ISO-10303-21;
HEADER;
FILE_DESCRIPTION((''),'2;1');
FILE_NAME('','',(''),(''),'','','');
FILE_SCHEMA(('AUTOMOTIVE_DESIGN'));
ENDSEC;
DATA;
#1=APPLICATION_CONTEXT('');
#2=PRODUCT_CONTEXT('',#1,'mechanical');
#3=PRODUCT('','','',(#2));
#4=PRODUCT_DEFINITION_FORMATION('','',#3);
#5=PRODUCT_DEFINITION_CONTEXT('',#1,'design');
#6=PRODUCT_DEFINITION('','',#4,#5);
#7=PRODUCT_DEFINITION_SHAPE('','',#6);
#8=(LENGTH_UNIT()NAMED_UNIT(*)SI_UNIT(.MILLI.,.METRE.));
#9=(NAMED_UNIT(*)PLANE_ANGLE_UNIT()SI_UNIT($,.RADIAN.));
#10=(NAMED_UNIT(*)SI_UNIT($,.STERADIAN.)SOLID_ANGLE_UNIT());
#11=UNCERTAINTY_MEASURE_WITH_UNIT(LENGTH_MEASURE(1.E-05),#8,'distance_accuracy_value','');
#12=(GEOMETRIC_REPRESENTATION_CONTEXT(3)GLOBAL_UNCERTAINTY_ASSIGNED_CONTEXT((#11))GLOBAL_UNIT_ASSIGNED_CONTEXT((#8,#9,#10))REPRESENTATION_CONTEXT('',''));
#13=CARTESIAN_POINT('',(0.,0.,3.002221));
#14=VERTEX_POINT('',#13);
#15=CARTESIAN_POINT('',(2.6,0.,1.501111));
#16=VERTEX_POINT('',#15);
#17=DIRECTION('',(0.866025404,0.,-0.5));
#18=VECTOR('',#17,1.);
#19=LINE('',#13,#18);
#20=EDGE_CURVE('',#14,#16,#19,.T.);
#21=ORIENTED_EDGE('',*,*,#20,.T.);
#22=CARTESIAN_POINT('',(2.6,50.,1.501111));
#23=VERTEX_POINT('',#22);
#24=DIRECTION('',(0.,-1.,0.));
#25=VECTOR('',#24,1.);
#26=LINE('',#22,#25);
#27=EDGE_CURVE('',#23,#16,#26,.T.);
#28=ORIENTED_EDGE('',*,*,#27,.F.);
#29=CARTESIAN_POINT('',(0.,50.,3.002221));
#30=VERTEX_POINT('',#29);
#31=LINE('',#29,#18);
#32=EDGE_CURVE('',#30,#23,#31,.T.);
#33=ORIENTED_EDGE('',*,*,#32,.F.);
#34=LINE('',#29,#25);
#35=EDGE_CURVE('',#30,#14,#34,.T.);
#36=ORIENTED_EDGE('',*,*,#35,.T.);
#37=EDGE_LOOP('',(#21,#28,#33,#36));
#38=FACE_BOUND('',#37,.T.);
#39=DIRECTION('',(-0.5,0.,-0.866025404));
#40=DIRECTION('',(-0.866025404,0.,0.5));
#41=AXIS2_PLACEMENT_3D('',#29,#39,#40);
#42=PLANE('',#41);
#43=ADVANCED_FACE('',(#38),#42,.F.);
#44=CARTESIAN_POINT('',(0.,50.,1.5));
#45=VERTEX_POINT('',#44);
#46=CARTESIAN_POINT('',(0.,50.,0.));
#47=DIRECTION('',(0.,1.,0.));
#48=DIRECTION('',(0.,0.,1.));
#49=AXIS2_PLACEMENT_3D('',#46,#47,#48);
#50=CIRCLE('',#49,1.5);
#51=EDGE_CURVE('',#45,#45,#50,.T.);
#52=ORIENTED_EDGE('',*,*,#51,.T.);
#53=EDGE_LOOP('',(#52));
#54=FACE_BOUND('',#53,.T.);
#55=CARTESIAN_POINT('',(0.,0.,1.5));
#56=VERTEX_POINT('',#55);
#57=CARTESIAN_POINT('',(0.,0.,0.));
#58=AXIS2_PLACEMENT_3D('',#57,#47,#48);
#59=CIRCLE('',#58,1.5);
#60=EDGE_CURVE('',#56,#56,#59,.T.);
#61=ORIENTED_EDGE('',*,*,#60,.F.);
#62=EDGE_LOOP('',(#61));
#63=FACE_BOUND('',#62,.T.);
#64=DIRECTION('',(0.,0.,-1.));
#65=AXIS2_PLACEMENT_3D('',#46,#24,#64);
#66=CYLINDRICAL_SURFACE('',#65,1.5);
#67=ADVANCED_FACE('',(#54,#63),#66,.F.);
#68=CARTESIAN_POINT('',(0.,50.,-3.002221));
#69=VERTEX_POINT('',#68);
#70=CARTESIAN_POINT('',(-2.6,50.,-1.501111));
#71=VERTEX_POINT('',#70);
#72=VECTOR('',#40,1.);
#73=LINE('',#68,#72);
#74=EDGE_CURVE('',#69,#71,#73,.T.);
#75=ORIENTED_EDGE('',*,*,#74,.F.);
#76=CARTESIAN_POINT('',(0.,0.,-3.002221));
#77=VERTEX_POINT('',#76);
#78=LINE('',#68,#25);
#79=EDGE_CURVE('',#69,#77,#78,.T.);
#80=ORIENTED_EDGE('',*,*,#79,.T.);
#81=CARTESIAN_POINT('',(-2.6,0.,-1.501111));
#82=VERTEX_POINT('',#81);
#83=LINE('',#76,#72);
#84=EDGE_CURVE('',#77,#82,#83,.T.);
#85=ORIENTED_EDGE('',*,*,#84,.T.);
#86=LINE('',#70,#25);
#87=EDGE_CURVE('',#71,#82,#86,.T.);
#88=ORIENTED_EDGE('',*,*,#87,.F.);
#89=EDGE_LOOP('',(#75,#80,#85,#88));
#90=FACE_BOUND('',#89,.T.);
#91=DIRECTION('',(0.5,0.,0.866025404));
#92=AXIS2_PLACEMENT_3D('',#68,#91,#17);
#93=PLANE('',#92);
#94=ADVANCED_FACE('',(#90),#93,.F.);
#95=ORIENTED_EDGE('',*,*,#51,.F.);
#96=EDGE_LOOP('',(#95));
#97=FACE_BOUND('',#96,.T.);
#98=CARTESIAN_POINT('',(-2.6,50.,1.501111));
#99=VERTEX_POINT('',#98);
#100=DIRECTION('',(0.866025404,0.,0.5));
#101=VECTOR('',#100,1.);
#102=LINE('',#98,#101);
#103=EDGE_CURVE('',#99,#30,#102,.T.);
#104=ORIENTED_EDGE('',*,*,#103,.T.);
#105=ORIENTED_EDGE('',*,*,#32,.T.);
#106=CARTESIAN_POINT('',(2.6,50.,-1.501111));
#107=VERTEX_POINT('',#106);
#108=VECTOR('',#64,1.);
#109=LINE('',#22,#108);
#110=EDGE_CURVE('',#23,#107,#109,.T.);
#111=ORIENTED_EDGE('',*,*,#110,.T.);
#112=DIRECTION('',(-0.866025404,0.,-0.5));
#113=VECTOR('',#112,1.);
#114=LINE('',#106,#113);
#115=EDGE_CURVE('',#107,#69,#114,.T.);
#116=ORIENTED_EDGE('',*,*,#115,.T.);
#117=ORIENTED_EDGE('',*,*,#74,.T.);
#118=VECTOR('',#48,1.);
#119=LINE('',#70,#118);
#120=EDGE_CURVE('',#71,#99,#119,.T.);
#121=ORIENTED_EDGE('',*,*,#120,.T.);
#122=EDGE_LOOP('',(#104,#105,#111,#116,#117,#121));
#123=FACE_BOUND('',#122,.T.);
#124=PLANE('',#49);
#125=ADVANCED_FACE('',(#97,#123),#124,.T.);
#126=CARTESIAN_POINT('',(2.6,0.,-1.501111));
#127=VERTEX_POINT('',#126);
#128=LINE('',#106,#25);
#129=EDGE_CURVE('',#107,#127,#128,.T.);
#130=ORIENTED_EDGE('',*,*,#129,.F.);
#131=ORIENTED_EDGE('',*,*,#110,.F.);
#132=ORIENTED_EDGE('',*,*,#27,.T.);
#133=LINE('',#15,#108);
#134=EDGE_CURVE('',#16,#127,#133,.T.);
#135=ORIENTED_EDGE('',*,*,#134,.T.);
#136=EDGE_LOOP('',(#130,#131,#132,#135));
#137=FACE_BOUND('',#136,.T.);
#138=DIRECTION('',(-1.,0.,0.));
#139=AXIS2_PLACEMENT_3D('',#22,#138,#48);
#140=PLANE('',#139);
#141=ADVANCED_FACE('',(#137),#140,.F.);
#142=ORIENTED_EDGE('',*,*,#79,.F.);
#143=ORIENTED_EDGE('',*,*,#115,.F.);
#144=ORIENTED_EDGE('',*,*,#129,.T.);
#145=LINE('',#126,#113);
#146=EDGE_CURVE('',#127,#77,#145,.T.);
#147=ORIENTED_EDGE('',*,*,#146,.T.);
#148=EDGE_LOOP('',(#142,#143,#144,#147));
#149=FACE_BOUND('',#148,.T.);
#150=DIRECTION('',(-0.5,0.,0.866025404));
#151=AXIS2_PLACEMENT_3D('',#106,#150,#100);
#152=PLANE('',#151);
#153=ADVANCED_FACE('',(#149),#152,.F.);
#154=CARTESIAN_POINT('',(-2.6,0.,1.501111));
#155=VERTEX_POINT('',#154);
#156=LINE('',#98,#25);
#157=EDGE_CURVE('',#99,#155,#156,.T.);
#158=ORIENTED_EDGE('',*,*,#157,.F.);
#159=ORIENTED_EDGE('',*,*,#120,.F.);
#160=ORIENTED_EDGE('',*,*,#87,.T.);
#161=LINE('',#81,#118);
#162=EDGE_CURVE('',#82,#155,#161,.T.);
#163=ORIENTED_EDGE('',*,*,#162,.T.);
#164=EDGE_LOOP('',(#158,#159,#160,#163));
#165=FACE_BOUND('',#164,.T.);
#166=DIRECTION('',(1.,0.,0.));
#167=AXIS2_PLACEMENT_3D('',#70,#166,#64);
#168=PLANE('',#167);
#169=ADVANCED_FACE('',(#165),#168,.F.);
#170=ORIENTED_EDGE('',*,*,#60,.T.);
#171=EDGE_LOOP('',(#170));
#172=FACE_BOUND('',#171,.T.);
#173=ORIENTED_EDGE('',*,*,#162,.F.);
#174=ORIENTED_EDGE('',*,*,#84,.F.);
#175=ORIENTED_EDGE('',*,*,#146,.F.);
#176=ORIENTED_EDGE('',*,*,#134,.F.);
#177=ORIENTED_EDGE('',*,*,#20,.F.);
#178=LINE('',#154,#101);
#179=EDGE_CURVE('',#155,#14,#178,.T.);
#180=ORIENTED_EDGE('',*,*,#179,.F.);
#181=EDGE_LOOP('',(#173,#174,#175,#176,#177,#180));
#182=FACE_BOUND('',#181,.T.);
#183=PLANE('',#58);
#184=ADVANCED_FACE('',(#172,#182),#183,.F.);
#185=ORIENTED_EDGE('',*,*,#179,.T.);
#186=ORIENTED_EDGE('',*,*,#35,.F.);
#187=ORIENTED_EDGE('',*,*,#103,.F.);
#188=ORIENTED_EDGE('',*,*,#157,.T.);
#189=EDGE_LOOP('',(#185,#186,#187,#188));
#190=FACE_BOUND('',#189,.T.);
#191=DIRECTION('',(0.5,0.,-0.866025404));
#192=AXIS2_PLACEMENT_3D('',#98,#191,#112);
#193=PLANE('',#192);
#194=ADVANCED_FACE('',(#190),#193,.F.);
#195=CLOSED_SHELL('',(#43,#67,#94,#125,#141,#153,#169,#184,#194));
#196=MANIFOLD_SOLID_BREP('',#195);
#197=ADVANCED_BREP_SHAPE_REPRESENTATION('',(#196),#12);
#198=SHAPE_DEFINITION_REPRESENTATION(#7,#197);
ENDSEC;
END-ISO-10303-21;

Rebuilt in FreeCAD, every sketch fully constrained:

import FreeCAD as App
import Part
import Sketcher

V = App.Vector
Q = App.Units.Quantity

doc = App.newDocument("Part")
body = doc.addObject("PartDesign::Body", "Body")

sketch1 = body.newObject("Sketcher::SketchObject", "Sketch")
sketch1.AttachmentSupport = (doc.getObject("XZ_Plane"), [""])
sketch1.MapMode = "FlatFace"
sketch1.addGeometry([
    Part.LineSegment(V(0, -3, 0), V(-2.6, -1.5, 0)),
    Part.LineSegment(V(-2.6, -1.5, 0), V(-2.6, 1.5, 0)),
    Part.LineSegment(V(-2.6, 1.5, 0), V(0, 3, 0)),
    Part.LineSegment(V(0, 3, 0), V(2.6, 1.5, 0)),
    Part.LineSegment(V(2.6, 1.5, 0), V(2.6, -1.5, 0)),
    Part.LineSegment(V(2.6, -1.5, 0), V(0, -3, 0)),
    Part.Circle(V(0, 0, 0), V(0, 0, 1), 1.5),
], False)
sketch1.addConstraint([
    Sketcher.Constraint("Coincident", 0, 2, 1, 1),
    Sketcher.Constraint("Coincident", 1, 2, 2, 1),
    Sketcher.Constraint("Coincident", 2, 2, 3, 1),
    Sketcher.Constraint("Coincident", 3, 2, 4, 1),
    Sketcher.Constraint("Coincident", 4, 2, 5, 1),
    Sketcher.Constraint("Coincident", 5, 2, 0, 1),
    Sketcher.Constraint("Vertical", 1),
    Sketcher.Constraint("Vertical", 4),
    Sketcher.Constraint("Coincident", 6, 3, -1, 1),
    Sketcher.Constraint("Symmetric", 0, 2, 3, 2, -1, 1),
    Sketcher.Constraint("Symmetric", 2, 2, 5, 2, -1, 1),
    Sketcher.Constraint("PointOnObject", 2, 2, -2),
    Sketcher.Constraint("Parallel", 2, 5),
    Sketcher.Constraint("Horizontal", 1, 2, 3, 2),
    Sketcher.Constraint("Diameter", 6, Q("3 mm")),
    Sketcher.Constraint("Angle", 0, Q("150 deg")),
    Sketcher.Constraint("DistanceX", 0, 2, -1, 1, Q("2.6 mm")),
    Sketcher.Constraint("DistanceY", 1, 1, 1, 2, Q("3.002221 mm")),
])
pad1 = body.newObject("PartDesign::Pad", "Pad")
pad1.Profile = sketch1
pad1.Length = 50
pad1.Reversed = True

doc.recompute()
